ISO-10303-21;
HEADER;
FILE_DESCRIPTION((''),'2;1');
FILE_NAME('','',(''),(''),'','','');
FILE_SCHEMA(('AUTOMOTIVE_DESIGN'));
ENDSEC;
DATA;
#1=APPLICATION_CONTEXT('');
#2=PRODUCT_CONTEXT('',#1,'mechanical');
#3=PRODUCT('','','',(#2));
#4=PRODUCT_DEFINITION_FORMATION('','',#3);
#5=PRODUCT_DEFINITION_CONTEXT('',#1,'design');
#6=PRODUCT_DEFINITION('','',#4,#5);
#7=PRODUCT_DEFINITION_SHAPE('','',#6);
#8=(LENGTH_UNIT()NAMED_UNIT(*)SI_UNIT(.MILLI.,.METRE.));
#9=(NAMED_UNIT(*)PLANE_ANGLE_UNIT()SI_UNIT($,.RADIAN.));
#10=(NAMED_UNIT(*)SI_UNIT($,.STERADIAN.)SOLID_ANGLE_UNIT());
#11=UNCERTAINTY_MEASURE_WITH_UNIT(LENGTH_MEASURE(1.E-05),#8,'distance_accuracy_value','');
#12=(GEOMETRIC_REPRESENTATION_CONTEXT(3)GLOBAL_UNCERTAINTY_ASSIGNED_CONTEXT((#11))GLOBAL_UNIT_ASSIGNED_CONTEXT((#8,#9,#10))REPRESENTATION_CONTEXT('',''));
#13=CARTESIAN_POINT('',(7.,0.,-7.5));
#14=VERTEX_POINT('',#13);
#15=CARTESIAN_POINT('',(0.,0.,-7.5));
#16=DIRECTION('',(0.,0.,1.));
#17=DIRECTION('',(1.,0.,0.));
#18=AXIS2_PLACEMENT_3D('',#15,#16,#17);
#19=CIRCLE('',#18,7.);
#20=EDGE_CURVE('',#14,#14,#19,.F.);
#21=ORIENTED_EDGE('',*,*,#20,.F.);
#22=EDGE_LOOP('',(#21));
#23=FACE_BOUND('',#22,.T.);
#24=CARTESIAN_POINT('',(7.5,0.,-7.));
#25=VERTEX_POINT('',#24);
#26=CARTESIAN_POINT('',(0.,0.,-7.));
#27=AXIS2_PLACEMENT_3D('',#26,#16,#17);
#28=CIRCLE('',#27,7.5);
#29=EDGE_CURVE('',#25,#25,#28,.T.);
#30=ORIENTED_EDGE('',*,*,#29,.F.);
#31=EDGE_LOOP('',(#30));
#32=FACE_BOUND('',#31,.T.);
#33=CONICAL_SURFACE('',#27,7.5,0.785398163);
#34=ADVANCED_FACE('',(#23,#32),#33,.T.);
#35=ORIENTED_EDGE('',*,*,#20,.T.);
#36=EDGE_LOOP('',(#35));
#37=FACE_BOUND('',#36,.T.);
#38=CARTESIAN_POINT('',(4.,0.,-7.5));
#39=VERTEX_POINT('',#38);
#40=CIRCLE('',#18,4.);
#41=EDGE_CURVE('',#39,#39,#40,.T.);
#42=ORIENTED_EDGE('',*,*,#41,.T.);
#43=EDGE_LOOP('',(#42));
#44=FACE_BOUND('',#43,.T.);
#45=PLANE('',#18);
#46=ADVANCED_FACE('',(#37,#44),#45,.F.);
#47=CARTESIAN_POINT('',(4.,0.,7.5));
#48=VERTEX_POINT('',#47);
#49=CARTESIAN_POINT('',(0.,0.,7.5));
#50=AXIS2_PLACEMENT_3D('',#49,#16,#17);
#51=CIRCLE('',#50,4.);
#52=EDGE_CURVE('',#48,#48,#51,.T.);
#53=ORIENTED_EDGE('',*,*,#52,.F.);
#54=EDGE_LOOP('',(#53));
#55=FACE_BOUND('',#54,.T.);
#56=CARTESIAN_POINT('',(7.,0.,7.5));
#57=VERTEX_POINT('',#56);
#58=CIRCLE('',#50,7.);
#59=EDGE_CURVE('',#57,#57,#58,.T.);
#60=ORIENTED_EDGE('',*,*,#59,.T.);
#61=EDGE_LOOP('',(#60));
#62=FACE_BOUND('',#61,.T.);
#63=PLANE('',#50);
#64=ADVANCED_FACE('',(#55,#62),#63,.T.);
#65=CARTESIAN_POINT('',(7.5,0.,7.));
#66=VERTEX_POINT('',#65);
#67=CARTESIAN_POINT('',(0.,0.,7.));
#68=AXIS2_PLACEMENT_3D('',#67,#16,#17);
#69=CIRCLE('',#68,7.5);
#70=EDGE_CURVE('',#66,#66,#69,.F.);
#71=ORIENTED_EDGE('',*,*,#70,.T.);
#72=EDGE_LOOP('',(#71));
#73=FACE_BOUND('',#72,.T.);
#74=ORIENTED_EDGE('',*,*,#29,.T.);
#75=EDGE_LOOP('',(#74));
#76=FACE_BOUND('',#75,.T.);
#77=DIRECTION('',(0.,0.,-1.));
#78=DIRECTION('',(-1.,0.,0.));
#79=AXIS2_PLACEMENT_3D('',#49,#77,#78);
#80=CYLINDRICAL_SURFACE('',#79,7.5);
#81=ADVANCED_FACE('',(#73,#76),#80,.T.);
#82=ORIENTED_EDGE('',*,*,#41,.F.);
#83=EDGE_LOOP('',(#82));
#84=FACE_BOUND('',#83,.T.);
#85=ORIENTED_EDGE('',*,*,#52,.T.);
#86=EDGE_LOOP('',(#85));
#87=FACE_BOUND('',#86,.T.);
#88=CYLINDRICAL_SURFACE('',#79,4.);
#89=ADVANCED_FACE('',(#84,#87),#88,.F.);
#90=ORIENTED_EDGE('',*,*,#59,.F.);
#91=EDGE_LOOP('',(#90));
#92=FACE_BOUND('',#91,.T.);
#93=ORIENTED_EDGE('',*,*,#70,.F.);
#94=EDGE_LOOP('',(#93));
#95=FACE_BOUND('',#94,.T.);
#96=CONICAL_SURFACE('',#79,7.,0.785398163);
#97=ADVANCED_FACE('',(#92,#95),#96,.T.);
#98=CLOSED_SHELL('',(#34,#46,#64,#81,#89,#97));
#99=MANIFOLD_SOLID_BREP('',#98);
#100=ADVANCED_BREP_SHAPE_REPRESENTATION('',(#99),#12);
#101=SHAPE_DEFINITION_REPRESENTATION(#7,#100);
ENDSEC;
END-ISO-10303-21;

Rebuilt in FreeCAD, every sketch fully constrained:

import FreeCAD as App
import Part
import Sketcher
from FreeCAD import Vector
Q = App.Units.Quantity


def edges_at(feature, points):
    """Names of the edges that pass closest to the given points."""
    edges = feature.Shape.Edges
    near = lambda p: min(range(len(edges)), key=lambda i: edges[i].distToShape(Part.Vertex(*p))[0])
    return sorted({f"Edge{near(p) + 1}" for p in points})

doc = App.newDocument("Part")
body = doc.addObject("PartDesign::Body", "Body")

# Sketch on XY plane
sketch1 = body.newObject("Sketcher::SketchObject", "Sketch")
sketch1.AttachmentSupport = (doc.getObject("XY_Plane"), [""])
sketch1.MapMode = "FlatFace"
sketch1.addGeometry([
    Part.Circle(Vector(0, 0, 0), Vector(0, 0, 1), 7.5),
    Part.Circle(Vector(0, 0, 0), Vector(0, 0, 1), 4),
], False)
sketch1.addConstraint([
    Sketcher.Constraint("Coincident", 0, 3, -1, 1),
    Sketcher.Constraint("Coincident", 1, 3, -1, 1),
    Sketcher.Constraint("Diameter", 0, Q("15 mm")),
    Sketcher.Constraint("Diameter", 1, Q("8 mm")),
])
pad1 = body.newObject("PartDesign::Pad", "Pad")
pad1.Profile = sketch1
pad1.Length = 15
pad1.Midplane = True
doc.recompute()

chamfer = body.newObject("PartDesign::Chamfer", "Chamfer")
chamfer.Base = (pad1, edges_at(pad1, [(-7.5, 0, -7.5)]))
chamfer.Size = 0.5
doc.recompute()

chamfer2 = body.newObject("PartDesign::Chamfer", "Chamfer001")
chamfer2.Base = (chamfer, edges_at(chamfer, [(-7.5, 0, 7.5)]))
chamfer2.Size = 0.5

doc.recompute()
